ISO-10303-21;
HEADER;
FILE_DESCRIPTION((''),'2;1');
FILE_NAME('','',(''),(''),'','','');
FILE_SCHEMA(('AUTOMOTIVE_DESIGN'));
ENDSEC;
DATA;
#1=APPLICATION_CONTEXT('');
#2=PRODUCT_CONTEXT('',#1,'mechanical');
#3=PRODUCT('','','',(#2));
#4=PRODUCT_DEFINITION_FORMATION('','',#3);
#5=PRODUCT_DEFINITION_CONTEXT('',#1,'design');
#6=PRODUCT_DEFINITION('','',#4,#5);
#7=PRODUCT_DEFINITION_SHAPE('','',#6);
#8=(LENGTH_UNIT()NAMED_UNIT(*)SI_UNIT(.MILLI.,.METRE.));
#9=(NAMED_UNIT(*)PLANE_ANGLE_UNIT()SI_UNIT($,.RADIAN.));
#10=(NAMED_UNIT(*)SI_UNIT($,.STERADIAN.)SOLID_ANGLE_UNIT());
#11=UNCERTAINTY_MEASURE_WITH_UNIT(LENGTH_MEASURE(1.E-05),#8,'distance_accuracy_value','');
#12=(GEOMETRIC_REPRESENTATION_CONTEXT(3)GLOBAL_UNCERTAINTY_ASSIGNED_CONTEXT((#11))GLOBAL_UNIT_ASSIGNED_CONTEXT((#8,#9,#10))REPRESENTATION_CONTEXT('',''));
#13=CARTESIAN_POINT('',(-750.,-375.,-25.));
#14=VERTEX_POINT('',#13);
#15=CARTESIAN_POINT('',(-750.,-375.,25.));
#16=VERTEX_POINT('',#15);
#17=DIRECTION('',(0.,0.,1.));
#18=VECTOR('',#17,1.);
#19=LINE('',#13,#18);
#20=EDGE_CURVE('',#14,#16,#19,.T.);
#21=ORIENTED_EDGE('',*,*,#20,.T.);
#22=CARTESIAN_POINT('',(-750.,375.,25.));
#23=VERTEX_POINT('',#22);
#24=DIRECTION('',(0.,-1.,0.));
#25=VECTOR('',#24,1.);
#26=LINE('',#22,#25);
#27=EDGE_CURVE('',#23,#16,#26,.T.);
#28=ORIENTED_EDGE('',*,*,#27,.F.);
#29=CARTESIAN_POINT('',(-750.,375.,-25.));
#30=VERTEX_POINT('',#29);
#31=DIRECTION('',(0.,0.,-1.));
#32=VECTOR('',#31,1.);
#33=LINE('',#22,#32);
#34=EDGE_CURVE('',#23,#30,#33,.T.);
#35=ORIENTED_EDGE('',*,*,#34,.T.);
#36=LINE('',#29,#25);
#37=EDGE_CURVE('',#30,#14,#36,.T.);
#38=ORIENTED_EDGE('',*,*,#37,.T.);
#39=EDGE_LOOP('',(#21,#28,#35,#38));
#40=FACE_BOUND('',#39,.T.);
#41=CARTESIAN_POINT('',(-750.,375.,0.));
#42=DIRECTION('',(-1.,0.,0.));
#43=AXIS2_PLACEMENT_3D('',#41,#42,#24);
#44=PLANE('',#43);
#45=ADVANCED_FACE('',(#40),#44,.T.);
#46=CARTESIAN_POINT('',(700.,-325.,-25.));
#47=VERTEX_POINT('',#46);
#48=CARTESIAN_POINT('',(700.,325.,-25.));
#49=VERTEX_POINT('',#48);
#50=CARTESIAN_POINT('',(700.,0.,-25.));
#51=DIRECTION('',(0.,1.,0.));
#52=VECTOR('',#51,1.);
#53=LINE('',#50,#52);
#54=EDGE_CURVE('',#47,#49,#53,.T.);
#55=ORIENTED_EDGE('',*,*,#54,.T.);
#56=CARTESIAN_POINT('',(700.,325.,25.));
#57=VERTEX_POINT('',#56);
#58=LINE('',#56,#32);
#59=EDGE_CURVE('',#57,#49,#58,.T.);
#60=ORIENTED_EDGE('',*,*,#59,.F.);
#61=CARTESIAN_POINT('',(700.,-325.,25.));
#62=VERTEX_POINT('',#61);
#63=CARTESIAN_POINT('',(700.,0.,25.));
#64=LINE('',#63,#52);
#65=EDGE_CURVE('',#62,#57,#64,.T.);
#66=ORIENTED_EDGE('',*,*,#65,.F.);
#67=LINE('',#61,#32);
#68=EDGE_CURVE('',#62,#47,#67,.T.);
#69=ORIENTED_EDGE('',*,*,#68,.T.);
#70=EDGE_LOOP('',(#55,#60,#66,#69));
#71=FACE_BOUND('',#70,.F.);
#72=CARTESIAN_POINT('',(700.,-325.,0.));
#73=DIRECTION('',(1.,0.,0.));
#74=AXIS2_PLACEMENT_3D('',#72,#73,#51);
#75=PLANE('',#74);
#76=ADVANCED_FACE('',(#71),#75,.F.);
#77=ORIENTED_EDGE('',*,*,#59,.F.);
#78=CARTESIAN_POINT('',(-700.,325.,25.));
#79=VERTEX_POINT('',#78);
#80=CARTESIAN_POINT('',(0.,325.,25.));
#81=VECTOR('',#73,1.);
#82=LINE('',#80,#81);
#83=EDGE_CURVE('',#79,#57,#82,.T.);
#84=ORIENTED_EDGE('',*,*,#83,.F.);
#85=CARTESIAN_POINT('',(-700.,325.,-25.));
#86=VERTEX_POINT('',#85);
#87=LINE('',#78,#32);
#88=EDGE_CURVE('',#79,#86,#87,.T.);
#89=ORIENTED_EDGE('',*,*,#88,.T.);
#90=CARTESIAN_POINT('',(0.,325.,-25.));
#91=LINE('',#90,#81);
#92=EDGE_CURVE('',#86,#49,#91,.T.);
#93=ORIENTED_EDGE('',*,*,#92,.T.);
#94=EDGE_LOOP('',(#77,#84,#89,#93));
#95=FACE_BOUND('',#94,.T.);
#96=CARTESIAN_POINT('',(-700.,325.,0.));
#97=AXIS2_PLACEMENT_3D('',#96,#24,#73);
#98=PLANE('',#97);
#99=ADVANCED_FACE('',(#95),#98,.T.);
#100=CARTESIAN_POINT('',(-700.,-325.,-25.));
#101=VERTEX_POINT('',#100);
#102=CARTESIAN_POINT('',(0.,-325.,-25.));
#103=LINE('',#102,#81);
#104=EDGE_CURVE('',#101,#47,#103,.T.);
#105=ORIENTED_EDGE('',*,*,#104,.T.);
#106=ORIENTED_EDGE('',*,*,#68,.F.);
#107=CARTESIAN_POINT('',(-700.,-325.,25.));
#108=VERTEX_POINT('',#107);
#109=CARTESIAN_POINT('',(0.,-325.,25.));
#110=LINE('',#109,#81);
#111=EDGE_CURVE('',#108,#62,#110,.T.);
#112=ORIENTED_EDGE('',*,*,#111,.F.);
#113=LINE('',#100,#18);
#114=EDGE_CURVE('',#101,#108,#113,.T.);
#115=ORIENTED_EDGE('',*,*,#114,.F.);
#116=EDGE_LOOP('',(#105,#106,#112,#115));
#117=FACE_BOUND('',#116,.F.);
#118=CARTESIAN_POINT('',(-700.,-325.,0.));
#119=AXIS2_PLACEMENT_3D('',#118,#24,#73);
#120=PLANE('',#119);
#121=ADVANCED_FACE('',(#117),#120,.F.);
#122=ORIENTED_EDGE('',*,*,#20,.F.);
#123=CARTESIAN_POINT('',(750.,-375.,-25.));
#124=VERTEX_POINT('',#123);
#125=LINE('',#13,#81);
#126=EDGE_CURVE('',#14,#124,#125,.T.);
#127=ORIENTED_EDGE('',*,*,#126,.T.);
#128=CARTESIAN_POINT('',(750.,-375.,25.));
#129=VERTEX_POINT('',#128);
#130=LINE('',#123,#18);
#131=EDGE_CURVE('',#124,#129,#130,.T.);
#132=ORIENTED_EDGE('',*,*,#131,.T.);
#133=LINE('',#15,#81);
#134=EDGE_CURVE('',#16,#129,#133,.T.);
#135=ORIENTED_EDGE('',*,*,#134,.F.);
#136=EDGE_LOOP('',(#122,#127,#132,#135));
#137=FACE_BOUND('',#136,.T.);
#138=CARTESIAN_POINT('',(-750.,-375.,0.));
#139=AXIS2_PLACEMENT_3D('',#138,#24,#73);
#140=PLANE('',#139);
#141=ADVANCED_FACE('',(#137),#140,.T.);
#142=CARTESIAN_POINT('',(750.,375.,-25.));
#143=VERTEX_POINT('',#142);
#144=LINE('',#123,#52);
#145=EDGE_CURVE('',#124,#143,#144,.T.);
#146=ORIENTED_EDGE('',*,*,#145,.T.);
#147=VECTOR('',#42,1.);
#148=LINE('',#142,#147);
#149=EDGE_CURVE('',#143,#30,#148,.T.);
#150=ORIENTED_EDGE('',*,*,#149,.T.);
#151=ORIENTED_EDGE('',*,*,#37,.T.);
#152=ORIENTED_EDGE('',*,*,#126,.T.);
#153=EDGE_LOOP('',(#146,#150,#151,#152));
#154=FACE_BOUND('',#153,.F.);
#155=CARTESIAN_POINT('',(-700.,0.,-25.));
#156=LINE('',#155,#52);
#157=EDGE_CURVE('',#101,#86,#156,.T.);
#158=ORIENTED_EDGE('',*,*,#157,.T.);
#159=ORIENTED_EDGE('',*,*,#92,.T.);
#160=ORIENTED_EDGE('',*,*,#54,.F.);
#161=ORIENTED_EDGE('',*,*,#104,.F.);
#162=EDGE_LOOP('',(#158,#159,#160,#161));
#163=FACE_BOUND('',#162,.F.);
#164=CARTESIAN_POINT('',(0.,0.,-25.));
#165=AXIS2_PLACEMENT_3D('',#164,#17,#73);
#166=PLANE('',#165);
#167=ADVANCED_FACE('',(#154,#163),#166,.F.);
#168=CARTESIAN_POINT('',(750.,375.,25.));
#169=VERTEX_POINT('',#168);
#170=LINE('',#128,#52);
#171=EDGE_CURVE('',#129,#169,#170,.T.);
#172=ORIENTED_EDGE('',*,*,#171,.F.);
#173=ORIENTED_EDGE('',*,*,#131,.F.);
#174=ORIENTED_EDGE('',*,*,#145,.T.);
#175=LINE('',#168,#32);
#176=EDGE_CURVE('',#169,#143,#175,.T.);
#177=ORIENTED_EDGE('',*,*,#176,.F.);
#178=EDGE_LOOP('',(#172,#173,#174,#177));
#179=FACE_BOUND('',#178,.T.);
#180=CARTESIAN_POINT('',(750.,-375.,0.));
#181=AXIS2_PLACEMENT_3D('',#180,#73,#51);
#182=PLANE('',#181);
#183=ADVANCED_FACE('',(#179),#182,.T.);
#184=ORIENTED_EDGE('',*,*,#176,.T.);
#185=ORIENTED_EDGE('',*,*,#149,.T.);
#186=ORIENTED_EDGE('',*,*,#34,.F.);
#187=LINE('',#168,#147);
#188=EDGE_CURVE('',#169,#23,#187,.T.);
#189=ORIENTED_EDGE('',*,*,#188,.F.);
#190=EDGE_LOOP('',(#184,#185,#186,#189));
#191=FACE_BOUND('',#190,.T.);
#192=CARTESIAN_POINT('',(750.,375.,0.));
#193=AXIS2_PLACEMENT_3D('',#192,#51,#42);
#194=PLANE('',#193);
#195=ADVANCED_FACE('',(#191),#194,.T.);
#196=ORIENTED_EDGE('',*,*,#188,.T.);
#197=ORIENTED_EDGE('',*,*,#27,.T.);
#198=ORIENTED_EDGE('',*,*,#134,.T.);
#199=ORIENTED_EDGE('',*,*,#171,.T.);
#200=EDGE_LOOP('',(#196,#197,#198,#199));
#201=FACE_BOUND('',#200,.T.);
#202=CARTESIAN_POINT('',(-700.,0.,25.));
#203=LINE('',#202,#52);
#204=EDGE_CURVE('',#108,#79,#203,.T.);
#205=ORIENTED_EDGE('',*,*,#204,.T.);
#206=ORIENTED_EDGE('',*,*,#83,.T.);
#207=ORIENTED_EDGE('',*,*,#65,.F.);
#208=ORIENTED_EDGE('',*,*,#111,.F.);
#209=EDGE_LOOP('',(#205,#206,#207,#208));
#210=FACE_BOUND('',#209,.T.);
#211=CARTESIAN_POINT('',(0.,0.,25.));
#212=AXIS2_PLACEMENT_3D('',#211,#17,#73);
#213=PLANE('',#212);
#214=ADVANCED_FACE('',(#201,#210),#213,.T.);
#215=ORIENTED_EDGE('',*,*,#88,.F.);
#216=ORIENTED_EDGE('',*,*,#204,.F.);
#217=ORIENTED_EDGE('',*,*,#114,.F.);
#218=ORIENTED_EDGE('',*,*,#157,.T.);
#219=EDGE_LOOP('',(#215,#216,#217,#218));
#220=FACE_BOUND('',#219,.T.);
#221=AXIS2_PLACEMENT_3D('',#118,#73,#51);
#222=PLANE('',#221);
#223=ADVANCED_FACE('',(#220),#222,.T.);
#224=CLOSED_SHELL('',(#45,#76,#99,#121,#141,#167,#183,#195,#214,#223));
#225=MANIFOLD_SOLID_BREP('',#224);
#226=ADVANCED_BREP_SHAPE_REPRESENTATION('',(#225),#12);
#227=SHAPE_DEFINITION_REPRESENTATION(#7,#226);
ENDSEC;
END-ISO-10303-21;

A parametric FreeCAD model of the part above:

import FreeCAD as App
import Part
import Sketcher


def add_polygon(sketch, points):
    """Adds a closed chain of lines whose ends are joined by coincident constraints."""
    first, n = sketch.GeometryCount, len(points)
    for a, b in zip(points, points[1:] + points[:1]):
        sketch.addGeometry(Part.LineSegment(App.Vector(*a, 0), App.Vector(*b, 0)), False)
    for i in range(n):
        sketch.addConstraint(Sketcher.Constraint("Coincident", first + i, 2, first + (i + 1) % n, 1))

doc = App.newDocument("Part")
params = doc.addObject("Spreadsheet::Sheet", "Params")
for row, (alias, value) in enumerate([
    ("sketch1_width", "1500 mm"),
    ("sketch1_width2", "1400 mm"),
    ("sketch1_height", "750 mm"),
    ("sketch1_height2", "650 mm"),
    ("pad1_length", "50 mm"),
], start=1):
    params.set(f"A{row}", alias)
    params.set(f"B{row}", "=" + value)
    params.setAlias(f"B{row}", alias)

body = doc.addObject("PartDesign::Body", "Body")

# Sketch on XY plane
sketch1 = body.newObject("Sketcher::SketchObject", "Sketch")
sketch1.AttachmentSupport = (doc.getObject("XY_Plane"), [""])
sketch1.MapMode = "FlatFace"
add_polygon(sketch1, [(-750, 375), (-750, -375), (750, -375), (750, 375)])  # lines 0-3
add_polygon(sketch1, [(700, -325), (-700, -325), (-700, 325), (700, 325)])  # lines 4-7
sketch1.addConstraint([
    Sketcher.Constraint("Vertical", 0),
    Sketcher.Constraint("Horizontal", 1),
    Sketcher.Constraint("Vertical", 2),
    Sketcher.Constraint("Horizontal", 3),
    Sketcher.Constraint("Horizontal", 4),
    Sketcher.Constraint("Vertical", 5),
    Sketcher.Constraint("Horizontal", 6),
    Sketcher.Constraint("Vertical", 7),
    Sketcher.Constraint("Symmetric", 0, 2, 2, 2, -1, 1),
    Sketcher.Constraint("Symmetric", 4, 2, 6, 2, -1, 1),
    Sketcher.Constraint("DistanceX", 1, 1, 1, 2, 1500.0),
    Sketcher.Constraint("DistanceX", 4, 2, 4, 1, 1400.0),
    Sketcher.Constraint("DistanceY", 0, 2, 0, 1, 750.0),
    Sketcher.Constraint("DistanceY", 5, 1, 5, 2, 650.0),
])
sketch1.setExpression("Constraints[18]", "Params.sketch1_width")
sketch1.setExpression("Constraints[19]", "Params.sketch1_width2")
sketch1.setExpression("Constraints[20]", "Params.sketch1_height")
sketch1.setExpression("Constraints[21]", "Params.sketch1_height2")
pad1 = body.newObject("PartDesign::Pad", "Pad")
pad1.Profile = sketch1
pad1.setExpression("Length", "Params.pad1_length")
pad1.Midplane = True

doc.recompute()
